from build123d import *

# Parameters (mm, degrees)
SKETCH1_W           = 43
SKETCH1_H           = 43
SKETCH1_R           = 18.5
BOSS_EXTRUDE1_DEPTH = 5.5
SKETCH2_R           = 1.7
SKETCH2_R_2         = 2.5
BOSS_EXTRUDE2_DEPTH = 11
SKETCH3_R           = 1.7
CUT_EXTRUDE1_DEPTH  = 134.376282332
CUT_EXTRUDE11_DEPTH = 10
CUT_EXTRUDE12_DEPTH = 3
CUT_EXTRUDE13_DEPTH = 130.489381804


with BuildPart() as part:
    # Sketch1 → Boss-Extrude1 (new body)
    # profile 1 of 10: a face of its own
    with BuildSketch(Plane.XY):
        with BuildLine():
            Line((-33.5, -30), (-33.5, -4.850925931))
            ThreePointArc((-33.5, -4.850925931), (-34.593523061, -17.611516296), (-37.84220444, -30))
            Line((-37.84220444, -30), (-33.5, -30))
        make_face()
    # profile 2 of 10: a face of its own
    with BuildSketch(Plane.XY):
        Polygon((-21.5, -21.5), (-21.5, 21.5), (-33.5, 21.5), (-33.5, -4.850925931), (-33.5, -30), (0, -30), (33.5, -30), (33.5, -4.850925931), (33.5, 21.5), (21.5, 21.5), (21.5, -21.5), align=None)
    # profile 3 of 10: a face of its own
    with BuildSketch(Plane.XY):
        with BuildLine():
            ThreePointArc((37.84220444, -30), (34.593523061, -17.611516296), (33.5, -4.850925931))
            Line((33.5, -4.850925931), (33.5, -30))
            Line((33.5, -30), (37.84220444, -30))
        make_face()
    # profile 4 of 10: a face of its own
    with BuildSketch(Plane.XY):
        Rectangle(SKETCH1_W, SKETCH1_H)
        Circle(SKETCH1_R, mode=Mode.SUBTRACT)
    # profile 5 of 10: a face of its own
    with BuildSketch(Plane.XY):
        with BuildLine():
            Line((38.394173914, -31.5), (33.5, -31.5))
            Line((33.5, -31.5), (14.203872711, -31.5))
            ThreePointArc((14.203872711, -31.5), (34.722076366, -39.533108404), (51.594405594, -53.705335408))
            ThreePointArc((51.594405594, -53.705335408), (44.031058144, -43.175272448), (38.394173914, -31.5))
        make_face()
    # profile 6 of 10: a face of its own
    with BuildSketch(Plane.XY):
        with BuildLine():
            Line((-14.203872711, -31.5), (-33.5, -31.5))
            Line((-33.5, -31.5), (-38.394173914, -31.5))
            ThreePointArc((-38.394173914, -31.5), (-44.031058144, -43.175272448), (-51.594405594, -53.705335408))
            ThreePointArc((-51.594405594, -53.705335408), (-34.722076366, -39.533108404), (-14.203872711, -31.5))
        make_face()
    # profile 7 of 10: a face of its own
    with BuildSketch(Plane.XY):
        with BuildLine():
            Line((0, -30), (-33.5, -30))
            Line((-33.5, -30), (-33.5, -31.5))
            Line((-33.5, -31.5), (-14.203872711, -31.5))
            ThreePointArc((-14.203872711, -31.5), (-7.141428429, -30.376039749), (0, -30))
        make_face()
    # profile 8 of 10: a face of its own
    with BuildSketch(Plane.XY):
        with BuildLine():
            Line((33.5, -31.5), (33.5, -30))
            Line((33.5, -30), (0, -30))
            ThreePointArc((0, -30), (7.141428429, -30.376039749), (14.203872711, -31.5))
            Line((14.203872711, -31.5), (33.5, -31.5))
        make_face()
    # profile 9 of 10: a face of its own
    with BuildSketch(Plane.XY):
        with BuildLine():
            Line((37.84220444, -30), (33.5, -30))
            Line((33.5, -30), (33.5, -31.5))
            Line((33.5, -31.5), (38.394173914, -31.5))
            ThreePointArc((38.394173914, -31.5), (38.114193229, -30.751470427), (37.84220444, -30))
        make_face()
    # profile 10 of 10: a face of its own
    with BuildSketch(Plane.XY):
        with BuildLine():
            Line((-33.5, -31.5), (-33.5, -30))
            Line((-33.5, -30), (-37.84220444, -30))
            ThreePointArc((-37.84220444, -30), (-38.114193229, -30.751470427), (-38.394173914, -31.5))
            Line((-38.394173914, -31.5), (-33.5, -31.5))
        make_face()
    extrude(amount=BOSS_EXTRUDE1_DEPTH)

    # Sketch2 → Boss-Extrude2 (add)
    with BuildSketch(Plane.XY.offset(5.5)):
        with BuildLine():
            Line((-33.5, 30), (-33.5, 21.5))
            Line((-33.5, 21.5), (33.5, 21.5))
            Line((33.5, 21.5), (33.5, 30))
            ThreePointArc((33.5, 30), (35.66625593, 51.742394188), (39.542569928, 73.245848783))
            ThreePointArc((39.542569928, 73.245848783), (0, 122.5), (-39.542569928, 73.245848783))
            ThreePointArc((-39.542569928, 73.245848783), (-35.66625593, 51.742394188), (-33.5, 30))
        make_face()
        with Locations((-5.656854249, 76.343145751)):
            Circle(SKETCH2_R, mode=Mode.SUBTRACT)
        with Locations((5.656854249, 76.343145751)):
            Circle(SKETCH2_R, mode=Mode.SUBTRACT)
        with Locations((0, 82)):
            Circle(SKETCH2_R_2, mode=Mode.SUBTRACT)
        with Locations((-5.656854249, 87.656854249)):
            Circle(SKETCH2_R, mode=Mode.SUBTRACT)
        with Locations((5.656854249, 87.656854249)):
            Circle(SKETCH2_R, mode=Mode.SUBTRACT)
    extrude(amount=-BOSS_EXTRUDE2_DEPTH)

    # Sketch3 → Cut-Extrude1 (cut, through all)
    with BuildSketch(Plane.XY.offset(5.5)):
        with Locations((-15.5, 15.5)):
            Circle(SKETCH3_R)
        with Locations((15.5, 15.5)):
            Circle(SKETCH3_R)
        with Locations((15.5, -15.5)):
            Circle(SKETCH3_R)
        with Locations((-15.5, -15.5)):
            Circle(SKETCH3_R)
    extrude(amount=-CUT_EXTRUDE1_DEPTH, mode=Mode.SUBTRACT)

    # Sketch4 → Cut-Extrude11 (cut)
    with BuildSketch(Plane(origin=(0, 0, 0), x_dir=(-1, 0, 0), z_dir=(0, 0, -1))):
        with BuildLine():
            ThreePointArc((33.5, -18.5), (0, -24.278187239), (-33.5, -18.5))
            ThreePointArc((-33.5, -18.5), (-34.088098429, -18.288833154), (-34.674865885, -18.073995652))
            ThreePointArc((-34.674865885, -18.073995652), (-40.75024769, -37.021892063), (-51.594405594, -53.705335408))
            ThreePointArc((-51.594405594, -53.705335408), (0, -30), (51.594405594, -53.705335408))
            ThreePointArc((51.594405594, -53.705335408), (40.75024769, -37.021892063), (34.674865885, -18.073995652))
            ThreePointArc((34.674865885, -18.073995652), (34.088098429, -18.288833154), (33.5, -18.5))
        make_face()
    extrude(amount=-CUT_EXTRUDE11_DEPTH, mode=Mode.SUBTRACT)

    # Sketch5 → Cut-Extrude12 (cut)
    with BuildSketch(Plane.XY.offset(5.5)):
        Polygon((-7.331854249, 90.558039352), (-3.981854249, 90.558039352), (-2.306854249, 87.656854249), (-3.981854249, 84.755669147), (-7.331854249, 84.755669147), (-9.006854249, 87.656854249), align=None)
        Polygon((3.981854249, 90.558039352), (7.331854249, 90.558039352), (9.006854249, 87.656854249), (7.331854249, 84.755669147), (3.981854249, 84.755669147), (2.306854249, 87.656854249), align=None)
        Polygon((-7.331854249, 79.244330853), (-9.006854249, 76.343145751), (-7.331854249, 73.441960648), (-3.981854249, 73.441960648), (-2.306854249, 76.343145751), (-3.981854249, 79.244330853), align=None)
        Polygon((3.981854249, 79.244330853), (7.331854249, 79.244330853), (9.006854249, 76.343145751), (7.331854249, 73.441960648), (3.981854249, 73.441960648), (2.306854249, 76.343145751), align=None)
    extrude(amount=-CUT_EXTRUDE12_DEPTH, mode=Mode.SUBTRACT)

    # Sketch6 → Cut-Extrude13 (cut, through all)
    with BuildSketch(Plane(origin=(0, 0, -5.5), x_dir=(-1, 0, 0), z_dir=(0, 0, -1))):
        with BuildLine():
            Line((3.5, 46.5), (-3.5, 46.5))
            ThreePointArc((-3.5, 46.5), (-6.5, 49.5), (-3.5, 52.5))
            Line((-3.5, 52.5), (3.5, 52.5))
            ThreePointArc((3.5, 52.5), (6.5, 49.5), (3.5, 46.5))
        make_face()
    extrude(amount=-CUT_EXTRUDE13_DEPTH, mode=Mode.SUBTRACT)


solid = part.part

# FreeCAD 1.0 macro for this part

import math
import FreeCAD as App
import Part
import Sketcher

V = App.Vector
Q = App.Units.Quantity


def add_polygon(sketch, points):
    """Adds a closed chain of lines whose ends are joined by coincident constraints."""
    first, n = sketch.GeometryCount, len(points)
    for a, b in zip(points, points[1:] + points[:1]):
        sketch.addGeometry(Part.LineSegment(App.Vector(*a, 0), App.Vector(*b, 0)), False)
    for i in range(n):
        sketch.addConstraint(Sketcher.Constraint("Coincident", first + i, 2, first + (i + 1) % n, 1))

doc = App.newDocument("Part")
params = doc.addObject("Spreadsheet::Sheet", "Params")
for row, (alias, value) in enumerate([
    ("sketch1_diameter", "37 mm"),
    ("sketch1_radius", "75 mm"),
    ("sketch1_radius2", "68 mm"),
    ("sketch1_width", "67 mm"),
    ("pad1_length", "5.5 mm"),
    ("sketch2_diameter", "5 mm"),
    ("sketch2_diameter2", "3.4 mm"),
    ("sketch2_radius", "276.5 mm"),
    ("sketch2_radius2", "40.5 mm"),
    ("sketch2_width", "67 mm"),
    ("pad2_length", "11 mm"),
    ("sketch3_diameter", "3.4 mm"),
    ("sketch4_radius", "100 mm"),
    ("sketch4_radius2", "75 mm"),
    ("sketch4_radius3", "68 mm"),
    ("pocket2_length", "10 mm"),
    ("sketch5_width", "3.35 mm"),
    ("pocket3_length", "3 mm"),
    ("sketch6_radius", "3 mm"),
    ("sketch6_width", "7 mm"),
], start=1):
    params.set(f"A{row}", alias)
    params.set(f"B{row}", "=" + value)
    params.setAlias(f"B{row}", alias)

body = doc.addObject("PartDesign::Body", "Body")

# Sketch on XY plane
sketch1 = body.newObject("Sketcher::SketchObject", "Sketch")
sketch1.AttachmentSupport = (doc.getObject("XY_Plane"), [""])
sketch1.MapMode = "FlatFace"
sketch1.addGeometry([
    Part.ArcOfCircle(Part.Circle(V(-108.5, -4.9, 0), V(0, 0, 1), 75), math.radians(-19.59), math.radians(0)),  # 0
    Part.ArcOfCircle(Part.Circle(V(-108.5, -4.9, 0), V(0, 0, 1), 75), math.radians(-20.81), math.radians(-19.59)),  # 1
    Part.ArcOfCircle(Part.Circle(V(-108.5, -4.9, 0), V(0, 0, 1), 75), math.radians(-40.65), math.radians(-20.81)),  # 2
    Part.ArcOfCircle(Part.Circle(V(0, -98, 0), V(0, 0, 1), 68), math.radians(102), math.radians(139)),  # 3
    Part.ArcOfCircle(Part.Circle(V(0, -98, 0), V(0, 0, 1), 68), math.radians(90), math.radians(102.06)),  # 4
    Part.ArcOfCircle(Part.Circle(V(0, -98, 0), V(0, 0, 1), 68), math.radians(77.94), math.radians(90)),  # 5
    Part.ArcOfCircle(Part.Circle(V(0, -98, 0), V(0, 0, 1), 68), math.radians(41), math.radians(78)),  # 6
    Part.ArcOfCircle(Part.Circle(V(108.5, -4.9, 0), V(0, 0, 1), 75), math.radians(-159.19), math.radians(-139.35)),  # 7
    Part.ArcOfCircle(Part.Circle(V(108.5, -4.9, 0), V(0, 0, 1), 75), math.radians(-160.41), math.radians(-159.19)),  # 8
    Part.ArcOfCircle(Part.Circle(V(108.5, -4.9, 0), V(0, 0, 1), 75), math.radians(180), math.radians(199.59)),  # 9
    Part.LineSegment(V(33.5, -4.9, 0), V(33.5, 21.5, 0)),  # 10
    Part.LineSegment(V(33.5, 21.5, 0), V(-33.5, 21.5, 0)),  # 11
    Part.LineSegment(V(-33.5, 21.5, 0), V(-33.5, -4.9, 0)),  # 12
    Part.Circle(V(0, 0, 0), V(0, 0, 1), 18.5),  # 13
], False)
sketch1.addConstraint([
    Sketcher.Constraint("Tangent", 0, 1, 1, 2),
    Sketcher.Constraint("Tangent", 1, 1, 2, 2),
    Sketcher.Constraint("Tangent", 2, 1, 3, 2),
    Sketcher.Constraint("Tangent", 3, 1, 4, 2),
    Sketcher.Constraint("Tangent", 4, 1, 5, 2),
    Sketcher.Constraint("Tangent", 5, 1, 6, 2),
    Sketcher.Constraint("Tangent", 6, 1, 7, 2),
    Sketcher.Constraint("Tangent", 7, 1, 8, 2),
    Sketcher.Constraint("Tangent", 8, 1, 9, 2),
    Sketcher.Constraint("Tangent", 9, 1, 10, 1),
    Sketcher.Constraint("Coincident", 10, 2, 11, 1),
    Sketcher.Constraint("Coincident", 11, 2, 12, 1),
    Sketcher.Constraint("Tangent", 12, 2, 0, 2),
    Sketcher.Constraint("Vertical", 10),
    Sketcher.Constraint("Horizontal", 11),
    Sketcher.Constraint("Vertical", 12),
    Sketcher.Constraint("Coincident", 13, 3, -1, 1),
    Sketcher.Constraint("Coincident", 2, 3, 0, 3),
    Sketcher.Constraint("Coincident", 5, 3, 3, 3),
    Sketcher.Constraint("Coincident", 9, 3, 7, 3),
    Sketcher.Constraint("Equal", 5, 6),
    Sketcher.Constraint("Equal", 2, 7),
    Sketcher.Constraint("Symmetric", 0, 3, 7, 3, -2),
    Sketcher.Constraint("PointOnObject", 4, 1, -2),
    Sketcher.Constraint("Horizontal", 1, 1, 3, 1),
    Sketcher.Constraint("Horizontal", 0, 1, 4, 1),
    Sketcher.Constraint("Horizontal", 3, 1, 5, 1),
    Sketcher.Constraint("Horizontal", 5, 1, 7, 1),
    Sketcher.Constraint("Horizontal", 4, 1, 8, 1),
    Sketcher.Constraint("Diameter", 13, Q("37 mm")),
    Sketcher.Constraint("Radius", 0, Q("75 mm")),
    Sketcher.Constraint("Radius", 3, Q("68 mm")),
    Sketcher.Constraint("DistanceX", 11, 2, 11, 1, Q("67 mm")),
    Sketcher.Constraint("DistanceY", 3, 3, -1, 1, Q("98 mm")),
    Sketcher.Constraint("DistanceY", 7, 1, 10, 2, Q("53 mm")),
    Sketcher.Constraint("DistanceY", 1, 1, -1, 1, Q("31.5 mm")),
])
sketch1.setExpression("Constraints[29]", "Params.sketch1_diameter")
sketch1.setExpression("Constraints[30]", "Params.sketch1_radius")
sketch1.setExpression("Constraints[31]", "Params.sketch1_radius2")
sketch1.setExpression("Constraints[32]", "Params.sketch1_width")
pad1 = body.newObject("PartDesign::Pad", "Pad")
pad1.Profile = sketch1
pad1.setExpression("Length", "Params.pad1_length")

# Sketch on XY plane
sketch2 = body.newObject("Sketcher::SketchObject", "Sketch001")
sketch2.AttachmentSupport = (doc.getObject("XY_Plane"), [""])
sketch2.MapMode = "FlatFace"
sketch2.AttachmentOffset = App.Placement(V(0, 0, 5.5), App.Rotation())
sketch2.addGeometry([
    Part.LineSegment(V(-33.5, 30, 0), V(-33.5, 21.5, 0)),  # 0
    Part.LineSegment(V(-33.5, 21.5, 0), V(33.5, 21.5, 0)),  # 1
    Part.LineSegment(V(33.5, 21.5, 0), V(33.5, 30, 0)),  # 2
    Part.ArcOfCircle(Part.Circle(V(309.5, 13.5, 0), V(0, 0, 1), 276.5), math.radians(167.52), math.radians(176.57)),  # 3
    Part.ArcOfCircle(Part.Circle(V(0, 82, 0), V(0, 0, 1), 40.5), math.radians(-12), math.radians(192)),  # 4
    Part.ArcOfCircle(Part.Circle(V(-309.5, 13.5, 0), V(0, 0, 1), 276.5), math.radians(3.43), math.radians(12.48)),  # 5
    Part.Circle(V(-5.7, 76.3, 0), V(0, 0, 1), 1.7),  # 6
    Part.Circle(V(5.7, 76.3, 0), V(0, 0, 1), 1.7),  # 7
    Part.Circle(V(-5.7, 87.7, 0), V(0, 0, 1), 1.7),  # 8
    Part.Circle(V(0, 82, 0), V(0, 0, 1), 2.5),  # 9
    Part.Circle(V(5.7, 87.7, 0), V(0, 0, 1), 1.7),  # 10
], False)
sketch2.addConstraint([
    Sketcher.Constraint("Coincident", 0, 2, 1, 1),
    Sketcher.Constraint("Coincident", 1, 2, 2, 1),
    Sketcher.Constraint("Coincident", 2, 2, 3, 2),
    Sketcher.Constraint("Tangent", 3, 1, 4, 1),
    Sketcher.Constraint("Tangent", 4, 2, 5, 2),
    Sketcher.Constraint("Coincident", 5, 1, 0, 1),
    Sketcher.Constraint("Vertical", 0),
    Sketcher.Constraint("Horizontal", 1),
    Sketcher.Constraint("Vertical", 2),
    Sketcher.Constraint("Coincident", 9, 3, 4, 3),
    Sketcher.Constraint("Equal", 3, 5),
    Sketcher.Constraint("Equal", 6, 7),
    Sketcher.Constraint("Equal", 7, 8),
    Sketcher.Constraint("Equal", 8, 10),
    Sketcher.Constraint("Symmetric", 3, 3, 5, 3, -2),
    Sketcher.Constraint("Symmetric", 6, 3, 7, 3, -2),
    Sketcher.Constraint("Symmetric", 8, 3, 10, 3, -2),
    Sketcher.Constraint("Horizontal", 2, 2, 5, 1),
    Sketcher.Constraint("Vertical", 6, 3, 8, 3),
    Sketcher.Constraint("Diameter", 9, Q("5 mm")),
    Sketcher.Constraint("Diameter", 6, Q("3.4 mm")),
    Sketcher.Constraint("Radius", 3, Q("276.5 mm")),
    Sketcher.Constraint("Radius", 4, Q("40.5 mm")),
    Sketcher.Constraint("DistanceX", 1, 1, 1, 2, Q("67 mm")),
    Sketcher.Constraint("DistanceY", 0, 2, 0, 1, Q("8.5 mm")),
    Sketcher.Constraint("DistanceY", -1, 1, 4, 3, Q("82 mm")),
    Sketcher.Constraint("DistanceY", -1, 1, 2, 2, Q("30 mm")),
    Sketcher.Constraint("DistanceY", 5, 3, 8, 3, Q("74.177001 mm")),
    Sketcher.Constraint("DistanceX", 6, 3, 7, 3, Q("11.313708 mm")),
    Sketcher.Constraint("DistanceY", 6, 3, 8, 3, Q("11.313708 mm")),
])
sketch2.setExpression("Constraints[19]", "Params.sketch2_diameter")
sketch2.setExpression("Constraints[20]", "Params.sketch2_diameter2")
sketch2.setExpression("Constraints[21]", "Params.sketch2_radius")
sketch2.setExpression("Constraints[22]", "Params.sketch2_radius2")
sketch2.setExpression("Constraints[23]", "Params.sketch2_width")
pad2 = body.newObject("PartDesign::Pad", "Pad001")
pad2.Profile = sketch2
pad2.setExpression("Length", "Params.pad2_length")
pad2.Reversed = True

# Sketch on XY plane
sketch3 = body.newObject("Sketcher::SketchObject", "Sketch002")
sketch3.AttachmentSupport = (doc.getObject("XY_Plane"), [""])
sketch3.MapMode = "FlatFace"
sketch3.AttachmentOffset = App.Placement(V(0, 0, 5.5), App.Rotation())
sketch3.addGeometry([
    Part.Circle(V(-15.5, 15.5, 0), V(0, 0, 1), 1.7),
    Part.Circle(V(15.5, 15.5, 0), V(0, 0, 1), 1.7),
    Part.Circle(V(15.5, -15.5, 0), V(0, 0, 1), 1.7),
    Part.Circle(V(-15.5, -15.5, 0), V(0, 0, 1), 1.7),
], False)
sketch3.addConstraint([
    Sketcher.Constraint("Equal", 0, 1),
    Sketcher.Constraint("Equal", 1, 2),
    Sketcher.Constraint("Equal", 2, 3),
    Sketcher.Constraint("Symmetric", 0, 3, 2, 3, -1, 1),
    Sketcher.Constraint("Symmetric", 1, 3, 3, 3, -1, 1),
    Sketcher.Constraint("Symmetric", 0, 3, 1, 3, -2),
    Sketcher.Constraint("Diameter", 0, Q("3.4 mm")),
    Sketcher.Constraint("DistanceX", 0, 3, 1, 3, Q("31 mm")),
    Sketcher.Constraint("DistanceY", 2, 3, 1, 3, Q("31 mm")),
])
sketch3.setExpression("Constraints[6]", "Params.sketch3_diameter")
pocket1 = body.newObject("PartDesign::Pocket", "Pocket")
pocket1.Profile = sketch3
pocket1.Type = "ThroughAll"

# Sketch on XY plane
sketch4 = body.newObject("Sketcher::SketchObject", "Sketch003")
sketch4.AttachmentSupport = (doc.getObject("XY_Plane"), [""])
sketch4.MapMode = "FlatFace"
sketch4.addGeometry([
    Part.ArcOfCircle(Part.Circle(V(0, 75.7, 0), V(0, 0, 1), 100), math.radians(-110), math.radians(-70)),  # 0
    Part.ArcOfCircle(Part.Circle(V(0, 75.7, 0), V(0, 0, 1), 100), math.radians(-70.43), math.radians(-69.71)),  # 1
    Part.ArcOfCircle(Part.Circle(V(108.5, -4.9, 0), V(0, 0, 1), 75), math.radians(-170), math.radians(-139)),  # 2
    Part.ArcOfCircle(Part.Circle(V(0, -98, 0), V(0, 0, 1), 68), math.radians(41), math.radians(139)),  # 3
    Part.ArcOfCircle(Part.Circle(V(-108.5, -4.9, 0), V(0, 0, 1), 75), math.radians(-41), math.radians(-10)),  # 4
    Part.ArcOfCircle(Part.Circle(V(0, 75.7, 0), V(0, 0, 1), 100), math.radians(-110.29), math.radians(-109.57)),  # 5
], False)
sketch4.addConstraint([
    Sketcher.Constraint("Tangent", 0, 2, 1, 1),
    Sketcher.Constraint("Coincident", 1, 2, 2, 1),
    Sketcher.Constraint("Tangent", 2, 2, 3, 1),
    Sketcher.Constraint("Tangent", 3, 2, 4, 1),
    Sketcher.Constraint("Coincident", 4, 2, 5, 1),
    Sketcher.Constraint("Tangent", 5, 2, 0, 1),
    Sketcher.Constraint("Equal", 2, 4),
    Sketcher.Constraint("Equal", 1, 5),
    Sketcher.Constraint("Symmetric", 2, 3, 4, 3, -2),
    Sketcher.Constraint("Symmetric", 0, 2, 5, 2, -2),
    Sketcher.Constraint("Radius", 0, Q("100 mm")),
    Sketcher.Constraint("Radius", 2, Q("75 mm")),
    Sketcher.Constraint("Radius", 3, Q("68 mm")),
    Sketcher.Constraint("DistanceY", 3, 3, -1, 1, Q("98 mm")),
    Sketcher.Constraint("DistanceX", 4, 3, 2, 3, Q("217 mm")),
    Sketcher.Constraint("DistanceX", 0, 2, 2, 3, Q("75 mm")),
    Sketcher.Constraint("DistanceY", 0, 2, -1, 1, Q("18.5 mm")),
    Sketcher.Constraint("Radius", 1, Q("100.000031 mm")),
])
sketch4.setExpression("Constraints[10]", "Params.sketch4_radius")
sketch4.setExpression("Constraints[11]", "Params.sketch4_radius2")
sketch4.setExpression("Constraints[12]", "Params.sketch4_radius3")
pocket2 = body.newObject("PartDesign::Pocket", "Pocket001")
pocket2.Profile = sketch4
pocket2.setExpression("Length", "Params.pocket2_length")
pocket2.Reversed = True

# Sketch on XY plane
sketch5 = body.newObject("Sketcher::SketchObject", "Sketch004")
sketch5.AttachmentSupport = (doc.getObject("XY_Plane"), [""])
sketch5.MapMode = "FlatFace"
sketch5.AttachmentOffset = App.Placement(V(0, 0, 5.5), App.Rotation())
add_polygon(sketch5, [(-4, 90.6), (-7.3, 90.6), (-9, 87.7), (-7.3, 84.8), (-4, 84.8), (-2.3, 87.7)])  # lines 0-5
add_polygon(sketch5, [(7.3, 90.6), (4, 90.6), (2.3, 87.7), (4, 84.8), (7.3, 84.8), (9, 87.7)])  # lines 6-11
add_polygon(sketch5, [(-7.3, 79.2), (-9, 76.3), (-7.3, 73.4), (-4, 73.4), (-2.3, 76.3), (-4, 79.2)])  # lines 12-17
add_polygon(sketch5, [(7.3, 79.2), (4, 79.2), (2.3, 76.3), (4, 73.4), (7.3, 73.4), (9, 76.3)])  # lines 18-23
sketch5.addConstraint([
    Sketcher.Constraint("Horizontal", 0),
    Sketcher.Constraint("Horizontal", 3),
    Sketcher.Constraint("Horizontal", 6),
    Sketcher.Constraint("Horizontal", 9),
    Sketcher.Constraint("Horizontal", 14),
    Sketcher.Constraint("Horizontal", 17),
    Sketcher.Constraint("Horizontal", 18),
    Sketcher.Constraint("Horizontal", 21),
    Sketcher.Constraint("Symmetric", 5, 2, 6, 2, -2),
    Sketcher.Constraint("Symmetric", 4, 2, 7, 2, -2),
    Sketcher.Constraint("Symmetric", 3, 2, 8, 2, -2),
    Sketcher.Constraint("Symmetric", 1, 2, 10, 2, -2),
    Sketcher.Constraint("Symmetric", 16, 2, 18, 2, -2),
    Sketcher.Constraint("Symmetric", 15, 2, 19, 2, -2),
    Sketcher.Constraint("Symmetric", 14, 2, 20, 2, -2),
    Sketcher.Constraint("Symmetric", 12, 2, 22, 2, -2),
    Sketcher.Constraint("Parallel", 1, 4),
    Sketcher.Constraint("Parallel", 2, 5),
    Sketcher.Constraint("Parallel", 4, 7),
    Sketcher.Constraint("Parallel", 7, 10),
    Sketcher.Constraint("Parallel", 8, 11),
    Sketcher.Constraint("Parallel", 10, 12),
    Sketcher.Constraint("Parallel", 11, 13),
    Sketcher.Constraint("Parallel", 12, 15),
    Sketcher.Constraint("Parallel", 13, 16),
    Sketcher.Constraint("Parallel", 19, 22),
    Sketcher.Constraint("Parallel", 20, 23),
    Sketcher.Constraint("Horizontal", 1, 2, 4, 2),
    Sketcher.Constraint("Horizontal", 12, 2, 15, 2),
    Sketcher.Constraint("Vertical", 0, 2, 2, 2),
    Sketcher.Constraint("Vertical", 1, 2, 12, 2),
    Sketcher.Constraint("Vertical", 2, 2, 13, 2),
    Sketcher.Constraint("Vertical", 5, 2, 14, 2),
    Sketcher.Constraint("Vertical", 14, 2, 16, 2),
    Sketcher.Constraint("Angle", 1, Q("-120 deg")),
    Sketcher.Constraint("DistanceX", 0, 2, 0, 1, Q("3.35 mm")),
    Sketcher.Constraint("DistanceX", 1, 2, 4, 2, Q("6.7 mm")),
    Sketcher.Constraint("DistanceY", -1, 1, 0, 2, Q("90.558039 mm")),
    Sketcher.Constraint("DistanceY", -1, 1, 13, 2, Q("73.441961 mm")),
    Sketcher.Constraint("DistanceX", 4, 2, 6, 2, Q("6.288708 mm")),
])
sketch5.setExpression("Constraints[59]", "Params.sketch5_width")
pocket3 = body.newObject("PartDesign::Pocket", "Pocket002")
pocket3.Profile = sketch5
pocket3.setExpression("Length", "Params.pocket3_length")

# Sketch on XY plane
sketch6 = body.newObject("Sketcher::SketchObject", "Sketch005")
sketch6.AttachmentSupport = (doc.getObject("XY_Plane"), [""])
sketch6.MapMode = "FlatFace"
sketch6.AttachmentOffset = App.Placement(V(0, 0, -5.5), App.Rotation())
sketch6.addGeometry([
    Part.LineSegment(V(3.5, 46.5, 0), V(-3.5, 46.5, 0)),
    Part.ArcOfCircle(Part.Circle(V(-3.5, 49.5, 0), V(0, 0, 1), 3), math.radians(90), math.radians(270)),
    Part.LineSegment(V(-3.5, 52.5, 0), V(3.5, 52.5, 0)),
    Part.ArcOfCircle(Part.Circle(V(3.5, 49.5, 0), V(0, 0, 1), 3), math.radians(-90), math.radians(90)),
], False)
sketch6.addConstraint([
    Sketcher.Constraint("Tangent", 0, 2, 1, 2),
    Sketcher.Constraint("Tangent", 1, 1, 2, 1),
    Sketcher.Constraint("Tangent", 2, 2, 3, 2),
    Sketcher.Constraint("Tangent", 3, 1, 0, 1),
    Sketcher.Constraint("Horizontal", 0),
    Sketcher.Constraint("Horizontal", 2),
    Sketcher.Constraint("Radius", 1, Q("3 mm")),
    Sketcher.Constraint("DistanceX", 0, 2, 0, 1, Q("7 mm")),
    Sketcher.Constraint("DistanceX", 1, 3, -1, 1, Q("3.5 mm")),
    Sketcher.Constraint("DistanceY", -1, 1, 1, 3, Q("49.5 mm")),
])
sketch6.setExpression("Constraints[6]", "Params.sketch6_radius")
sketch6.setExpression("Constraints[7]", "Params.sketch6_width")
pocket4 = body.newObject("PartDesign::Pocket", "Pocket003")
pocket4.Profile = sketch6
pocket4.Type = "ThroughAll"
pocket4.Reversed = True

doc.recompute()
